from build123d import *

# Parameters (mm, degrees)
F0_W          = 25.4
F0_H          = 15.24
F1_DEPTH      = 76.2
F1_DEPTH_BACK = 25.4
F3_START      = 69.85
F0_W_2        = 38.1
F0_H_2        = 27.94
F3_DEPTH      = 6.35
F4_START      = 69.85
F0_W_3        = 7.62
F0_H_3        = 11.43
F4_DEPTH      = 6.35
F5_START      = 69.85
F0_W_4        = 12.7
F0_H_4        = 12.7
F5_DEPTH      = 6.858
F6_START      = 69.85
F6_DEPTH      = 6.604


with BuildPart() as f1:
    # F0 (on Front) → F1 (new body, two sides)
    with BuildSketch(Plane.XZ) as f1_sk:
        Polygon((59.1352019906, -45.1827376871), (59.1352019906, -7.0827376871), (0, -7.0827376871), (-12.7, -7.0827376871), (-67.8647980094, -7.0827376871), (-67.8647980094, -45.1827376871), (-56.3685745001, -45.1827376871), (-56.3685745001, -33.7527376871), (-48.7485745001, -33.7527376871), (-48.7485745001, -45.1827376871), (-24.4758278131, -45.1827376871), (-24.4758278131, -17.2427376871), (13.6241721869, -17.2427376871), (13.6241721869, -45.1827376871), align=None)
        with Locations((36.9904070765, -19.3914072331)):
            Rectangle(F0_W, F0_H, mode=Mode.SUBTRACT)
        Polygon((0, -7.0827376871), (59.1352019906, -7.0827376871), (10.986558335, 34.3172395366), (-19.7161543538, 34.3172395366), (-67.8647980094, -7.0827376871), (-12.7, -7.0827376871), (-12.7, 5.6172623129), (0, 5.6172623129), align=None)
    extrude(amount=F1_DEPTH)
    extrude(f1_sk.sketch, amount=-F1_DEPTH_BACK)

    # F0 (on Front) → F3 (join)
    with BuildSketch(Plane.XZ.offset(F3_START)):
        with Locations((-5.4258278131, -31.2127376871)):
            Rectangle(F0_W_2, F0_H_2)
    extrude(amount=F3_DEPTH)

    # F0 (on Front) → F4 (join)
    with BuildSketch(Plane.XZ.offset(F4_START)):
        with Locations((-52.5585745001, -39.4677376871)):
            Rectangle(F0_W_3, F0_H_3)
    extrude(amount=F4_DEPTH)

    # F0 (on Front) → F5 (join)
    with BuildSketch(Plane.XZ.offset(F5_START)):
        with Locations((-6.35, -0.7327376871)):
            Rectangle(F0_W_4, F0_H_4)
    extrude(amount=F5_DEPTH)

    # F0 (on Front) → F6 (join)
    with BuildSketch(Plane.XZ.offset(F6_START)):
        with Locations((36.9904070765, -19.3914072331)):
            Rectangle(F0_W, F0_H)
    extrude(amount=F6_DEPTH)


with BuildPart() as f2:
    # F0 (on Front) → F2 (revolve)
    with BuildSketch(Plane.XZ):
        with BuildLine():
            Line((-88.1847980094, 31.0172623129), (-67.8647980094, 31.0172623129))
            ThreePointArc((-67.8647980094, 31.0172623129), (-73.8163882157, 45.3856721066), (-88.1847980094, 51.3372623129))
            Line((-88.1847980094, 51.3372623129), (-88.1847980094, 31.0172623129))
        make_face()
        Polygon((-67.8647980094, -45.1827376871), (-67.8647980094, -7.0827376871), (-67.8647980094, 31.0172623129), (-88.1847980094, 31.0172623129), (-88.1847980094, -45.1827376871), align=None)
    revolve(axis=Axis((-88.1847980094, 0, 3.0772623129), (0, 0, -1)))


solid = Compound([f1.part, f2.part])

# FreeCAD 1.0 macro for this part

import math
import FreeCAD as App
import Part
import Sketcher
from FreeCAD import Vector
Q = App.Units.Quantity


def add_polygon(sketch, points):
    """Adds a closed chain of lines whose ends are joined by coincident constraints."""
    first, n = sketch.GeometryCount, len(points)
    for a, b in zip(points, points[1:] + points[:1]):
        sketch.addGeometry(Part.LineSegment(App.Vector(*a, 0), App.Vector(*b, 0)), False)
    for i in range(n):
        sketch.addConstraint(Sketcher.Constraint("Coincident", first + i, 2, first + (i + 1) % n, 1))

doc = App.newDocument("Part")
params = doc.addObject("Spreadsheet::Sheet", "Params")
for row, (alias, value) in enumerate([
    ("sketch1_width", "1 in"),
    ("sketch1_width2", "0.3 in"),
    ("sketch1_width3", "1.5 in"),
    ("sketch1_width4", "0.5 in"),
    ("sketch1_height", "1.1 in"),
    ("pad1_length", "3 in"),
    ("pad1_length2", "1 in"),
    ("sketch2_width", "1.5 in"),
    ("sketch2_height", "1.1 in"),
    ("pad2_length", "0.25 in"),
    ("sketch3_width", "0.3 in"),
    ("sketch3_height", "0.45 in"),
    ("pad3_length", "0.25 in"),
    ("sketch4_width", "0.5 in"),
    ("pad4_length", "0.27 in"),
    ("sketch5_width", "1 in"),
    ("sketch5_height", "0.6 in"),
    ("pad5_length", "0.26 in"),
    ("sketch6_radius", "0.8 in"),
    ("sketch6_height", "3 in"),
    ("sketch6_width", "0.8 in"),
    ("revolution_angle", "360 deg"),
], start=1):
    params.set(f"A{row}", alias)
    params.set(f"B{row}", "=" + value)
    params.setAlias(f"B{row}", alias)

body = doc.addObject("PartDesign::Body", "Body")

# Sketch on XZ plane
sketch1 = body.newObject("Sketcher::SketchObject", "Sketch")
sketch1.AttachmentSupport = (doc.getObject("XZ_Plane"), [""])
sketch1.MapMode = "FlatFace"
add_polygon(sketch1, [(59, -45), (59, -7), (11, 34), (-20, 34), (-68, -7), (-68, -45), (-56, -45), (-56, -34), (-49, -34), (-49, -45), (-24, -45), (-24, -17), (14, -17), (14, -45)])  # lines 0-13
add_polygon(sketch1, [(0, -7), (-13, -7), (-13, 6), (0, 6)])  # lines 14-17
add_polygon(sketch1, [(50, -27), (24, -27), (24, -12), (50, -12)])  # lines 18-21
sketch1.addConstraint([
    Sketcher.Constraint("Vertical", 0),
    Sketcher.Constraint("Horizontal", 2),
    Sketcher.Constraint("Vertical", 4),
    Sketcher.Constraint("Horizontal", 5),
    Sketcher.Constraint("Vertical", 6),
    Sketcher.Constraint("Horizontal", 7),
    Sketcher.Constraint("Vertical", 8),
    Sketcher.Constraint("Horizontal", 9),
    Sketcher.Constraint("Vertical", 10),
    Sketcher.Constraint("Horizontal", 11),
    Sketcher.Constraint("Vertical", 12),
    Sketcher.Constraint("Horizontal", 13),
    Sketcher.Constraint("Horizontal", 14),
    Sketcher.Constraint("Vertical", 15),
    Sketcher.Constraint("Horizontal", 16),
    Sketcher.Constraint("Vertical", 17),
    Sketcher.Constraint("Horizontal", 18),
    Sketcher.Constraint("Vertical", 19),
    Sketcher.Constraint("Horizontal", 20),
    Sketcher.Constraint("Vertical", 21),
    Sketcher.Constraint("PointOnObject", 16, 2, -2),
    Sketcher.Constraint("Horizontal", 0, 2, 3, 2),
    Sketcher.Constraint("Horizontal", 5, 2, 8, 2),
    Sketcher.Constraint("Horizontal", 9, 2, 12, 2),
    Sketcher.Constraint("Horizontal", 3, 2, 14, 2),
    Sketcher.Constraint("Equal", 11, 0),
    Sketcher.Constraint("Equal", 16, 15),
    Sketcher.Constraint("Equal", 1, 3),
    Sketcher.Constraint("DistanceX", 18, 2, 18, 1, Q("1 in")),
    Sketcher.Constraint("DistanceX", 7, 1, 7, 2, Q("0.3 in")),
    Sketcher.Constraint("DistanceX", 11, 1, 11, 2, Q("1.5 in")),
    Sketcher.Constraint("DistanceX", 14, 2, 14, 1, Q("0.5 in")),
    Sketcher.Constraint("DistanceY", 10, 1, 10, 2, Q("1.1 in")),
    Sketcher.Constraint("DistanceY", 19, 1, 19, 2, Q("0.6 in")),
    Sketcher.Constraint("DistanceX", 3, 2, 0, 2, Q("5 in")),
    Sketcher.Constraint("Distance", 1, Q("2.5 in")),
    Sketcher.Constraint("DistanceY", 6, 1, 6, 2, Q("0.45 in")),
    Sketcher.Constraint("DistanceX", 13, 1, 13, 2, 45.51103),
    Sketcher.Constraint("DistanceX", -1, 1, 0, 2, 59.135202),
    Sketcher.Constraint("DistanceX", 2, 2, 2, 1, 30.702713),
    Sketcher.Constraint("DistanceX", 5, 1, 5, 2, 11.496224),
    Sketcher.Constraint("DistanceY", -1, 1, 1, 2, 34.31724),
    Sketcher.Constraint("DistanceY", 18, 2, 11, 2, 9.76867),
    Sketcher.Constraint("DistanceX", -1, 1, 18, 2, 24.290407),
])
sketch1.setExpression("Constraints[50]", "Params.sketch1_width")
sketch1.setExpression("Constraints[51]", "Params.sketch1_width2")
sketch1.setExpression("Constraints[52]", "Params.sketch1_width3")
sketch1.setExpression("Constraints[53]", "Params.sketch1_width4")
sketch1.setExpression("Constraints[54]", "Params.sketch1_height")
pad1 = body.newObject("PartDesign::Pad", "Pad")
pad1.Profile = sketch1
pad1.Type = "TwoLengths"
pad1.setExpression("Length", "Params.pad1_length")
pad1.setExpression("Length2", "Params.pad1_length2")

# Sketch on XZ plane
sketch2 = body.newObject("Sketcher::SketchObject", "Sketch001")
sketch2.AttachmentSupport = (doc.getObject("XZ_Plane"), [""])
sketch2.MapMode = "FlatFace"
sketch2.AttachmentOffset = App.Placement(Vector(0, 0, 2.75 * 25.4), App.Rotation())
add_polygon(sketch2, [(-24, -17), (-24, -45), (14, -45), (14, -17)])  # lines 0-3
sketch2.addConstraint([
    Sketcher.Constraint("Vertical", 0),
    Sketcher.Constraint("Horizontal", 1),
    Sketcher.Constraint("Vertical", 2),
    Sketcher.Constraint("Horizontal", 3),
    Sketcher.Constraint("DistanceX", 1, 1, 1, 2, Q("1.5 in")),
    Sketcher.Constraint("DistanceY", 0, 2, 0, 1, Q("1.1 in")),
    Sketcher.Constraint("DistanceX", 0, 2, -1, 1, 24.475828),
    Sketcher.Constraint("DistanceY", 0, 2, -1, 1, 45.182738),
])
sketch2.setExpression("Constraints[8]", "Params.sketch2_width")
sketch2.setExpression("Constraints[9]", "Params.sketch2_height")
pad2 = body.newObject("PartDesign::Pad", "Pad001")
pad2.Profile = sketch2
pad2.setExpression("Length", "Params.pad2_length")

# Sketch on XZ plane
sketch3 = body.newObject("Sketcher::SketchObject", "Sketch002")
sketch3.AttachmentSupport = (doc.getObject("XZ_Plane"), [""])
sketch3.MapMode = "FlatFace"
sketch3.AttachmentOffset = App.Placement(Vector(0, 0, 2.75 * 25.4), App.Rotation())
add_polygon(sketch3, [(-56, -34), (-56, -45), (-49, -45), (-49, -34)])  # lines 0-3
sketch3.addConstraint([
    Sketcher.Constraint("Vertical", 0),
    Sketcher.Constraint("Horizontal", 1),
    Sketcher.Constraint("Vertical", 2),
    Sketcher.Constraint("Horizontal", 3),
    Sketcher.Constraint("DistanceX", 1, 1, 1, 2, Q("0.3 in")),
    Sketcher.Constraint("DistanceY", 0, 2, 0, 1, Q("0.45 in")),
    Sketcher.Constraint("DistanceX", 0, 2, -1, 1, 56.368575),
    Sketcher.Constraint("DistanceY", 0, 2, -1, 1, 45.182738),
])
sketch3.setExpression("Constraints[8]", "Params.sketch3_width")
sketch3.setExpression("Constraints[9]", "Params.sketch3_height")
pad3 = body.newObject("PartDesign::Pad", "Pad002")
pad3.Profile = sketch3
pad3.setExpression("Length", "Params.pad3_length")

# Sketch on XZ plane
sketch4 = body.newObject("Sketcher::SketchObject", "Sketch003")
sketch4.AttachmentSupport = (doc.getObject("XZ_Plane"), [""])
sketch4.MapMode = "FlatFace"
sketch4.AttachmentOffset = App.Placement(Vector(0, 0, 2.75 * 25.4), App.Rotation())
add_polygon(sketch4, [(-13, 6), (-13, -7), (0, -7), (0, 6)])  # lines 0-3
sketch4.addConstraint([
    Sketcher.Constraint("Vertical", 0),
    Sketcher.Constraint("Horizontal", 1),
    Sketcher.Constraint("Vertical", 2),
    Sketcher.Constraint("Horizontal", 3),
    Sketcher.Constraint("PointOnObject", 1, 2, -2),
    Sketcher.Constraint("Equal", 3, 0),
    Sketcher.Constraint("DistanceX", 1, 1, 1, 2, Q("0.5 in")),
    Sketcher.Constraint("DistanceY", 0, 2, -1, 1, 7.082738),
])
sketch4.setExpression("Constraints[10]", "Params.sketch4_width")
pad4 = body.newObject("PartDesign::Pad", "Pad003")
pad4.Profile = sketch4
pad4.setExpression("Length", "Params.pad4_length")

# Sketch on XZ plane
sketch5 = body.newObject("Sketcher::SketchObject", "Sketch004")
sketch5.AttachmentSupport = (doc.getObject("XZ_Plane"), [""])
sketch5.MapMode = "FlatFace"
sketch5.AttachmentOffset = App.Placement(Vector(0, 0, 2.75 * 25.4), App.Rotation())
add_polygon(sketch5, [(24, -12), (24, -27), (50, -27), (50, -12)])  # lines 0-3
sketch5.addConstraint([
    Sketcher.Constraint("Vertical", 0),
    Sketcher.Constraint("Horizontal", 1),
    Sketcher.Constraint("Vertical", 2),
    Sketcher.Constraint("Horizontal", 3),
    Sketcher.Constraint("DistanceX", 1, 1, 1, 2, Q("1 in")),
    Sketcher.Constraint("DistanceY", 0, 2, 0, 1, Q("0.6 in")),
    Sketcher.Constraint("DistanceX", -1, 1, 0, 2, 24.290407),
    Sketcher.Constraint("DistanceY", 0, 2, -1, 1, 27.011407),
])
sketch5.setExpression("Constraints[8]", "Params.sketch5_width")
sketch5.setExpression("Constraints[9]", "Params.sketch5_height")
pad5 = body.newObject("PartDesign::Pad", "Pad004")
pad5.Profile = sketch5
pad5.setExpression("Length", "Params.pad5_length")
body2 = doc.addObject("PartDesign::Body", "Body001")

# Sketch on XZ plane
sketch6 = body2.newObject("Sketcher::SketchObject", "Sketch005")
sketch6.AttachmentSupport = (doc.getObject("XZ_Plane001"), [""])
sketch6.MapMode = "FlatFace"
sketch6.addGeometry([
    Part.ArcOfCircle(Part.Circle(Vector(-88, 31, 0), Vector(0, 0, 1), 20), math.radians(0), math.radians(90)),
    Part.LineSegment(Vector(-88, 51, 0), Vector(-88, -45, 0)),
    Part.LineSegment(Vector(-88, -45, 0), Vector(-68, -45, 0)),
    Part.LineSegment(Vector(-68, -45, 0), Vector(-68, 31, 0)),
], False)
sketch6.addGeometry(Part.LineSegment(Vector(-88, 51, 0), Vector(-88, -45, 0)), True)  # axis
sketch6.addConstraint([
    Sketcher.Constraint("Coincident", 0, 2, 1, 1),
    Sketcher.Constraint("Coincident", 1, 2, 2, 1),
    Sketcher.Constraint("Coincident", 2, 2, 3, 1),
    Sketcher.Constraint("Tangent", 3, 2, 0, 1),
    Sketcher.Constraint("Vertical", 1),
    Sketcher.Constraint("Horizontal", 2),
    Sketcher.Constraint("Vertical", 3),
    Sketcher.Constraint("Vertical", 4),
    Sketcher.Constraint("Coincident", 4, 1, 0, 2),
    Sketcher.Constraint("Horizontal", 2, 2, 4, 2),
    Sketcher.Constraint("Radius", 0, Q("0.8 in")),
    Sketcher.Constraint("DistanceY", 3, 1, 3, 2, Q("3 in")),
    Sketcher.Constraint("DistanceX", 2, 1, 2, 2, Q("0.8 in")),
    Sketcher.Constraint("DistanceX", 0, 3, -1, 1, 88.184798),
    Sketcher.Constraint("DistanceY", -1, 1, 0, 3, 31.017262),
])
sketch6.setExpression("Constraints[10]", "Params.sketch6_radius")
sketch6.setExpression("Constraints[11]", "Params.sketch6_height")
sketch6.setExpression("Constraints[12]", "Params.sketch6_width")
revolution = body2.newObject("PartDesign::Revolution", "Revolution")
revolution.Profile = sketch6
revolution.ReferenceAxis = (sketch6, ["Axis0"])
revolution.setExpression("Angle", "Params.revolution_angle")

doc.recompute()
